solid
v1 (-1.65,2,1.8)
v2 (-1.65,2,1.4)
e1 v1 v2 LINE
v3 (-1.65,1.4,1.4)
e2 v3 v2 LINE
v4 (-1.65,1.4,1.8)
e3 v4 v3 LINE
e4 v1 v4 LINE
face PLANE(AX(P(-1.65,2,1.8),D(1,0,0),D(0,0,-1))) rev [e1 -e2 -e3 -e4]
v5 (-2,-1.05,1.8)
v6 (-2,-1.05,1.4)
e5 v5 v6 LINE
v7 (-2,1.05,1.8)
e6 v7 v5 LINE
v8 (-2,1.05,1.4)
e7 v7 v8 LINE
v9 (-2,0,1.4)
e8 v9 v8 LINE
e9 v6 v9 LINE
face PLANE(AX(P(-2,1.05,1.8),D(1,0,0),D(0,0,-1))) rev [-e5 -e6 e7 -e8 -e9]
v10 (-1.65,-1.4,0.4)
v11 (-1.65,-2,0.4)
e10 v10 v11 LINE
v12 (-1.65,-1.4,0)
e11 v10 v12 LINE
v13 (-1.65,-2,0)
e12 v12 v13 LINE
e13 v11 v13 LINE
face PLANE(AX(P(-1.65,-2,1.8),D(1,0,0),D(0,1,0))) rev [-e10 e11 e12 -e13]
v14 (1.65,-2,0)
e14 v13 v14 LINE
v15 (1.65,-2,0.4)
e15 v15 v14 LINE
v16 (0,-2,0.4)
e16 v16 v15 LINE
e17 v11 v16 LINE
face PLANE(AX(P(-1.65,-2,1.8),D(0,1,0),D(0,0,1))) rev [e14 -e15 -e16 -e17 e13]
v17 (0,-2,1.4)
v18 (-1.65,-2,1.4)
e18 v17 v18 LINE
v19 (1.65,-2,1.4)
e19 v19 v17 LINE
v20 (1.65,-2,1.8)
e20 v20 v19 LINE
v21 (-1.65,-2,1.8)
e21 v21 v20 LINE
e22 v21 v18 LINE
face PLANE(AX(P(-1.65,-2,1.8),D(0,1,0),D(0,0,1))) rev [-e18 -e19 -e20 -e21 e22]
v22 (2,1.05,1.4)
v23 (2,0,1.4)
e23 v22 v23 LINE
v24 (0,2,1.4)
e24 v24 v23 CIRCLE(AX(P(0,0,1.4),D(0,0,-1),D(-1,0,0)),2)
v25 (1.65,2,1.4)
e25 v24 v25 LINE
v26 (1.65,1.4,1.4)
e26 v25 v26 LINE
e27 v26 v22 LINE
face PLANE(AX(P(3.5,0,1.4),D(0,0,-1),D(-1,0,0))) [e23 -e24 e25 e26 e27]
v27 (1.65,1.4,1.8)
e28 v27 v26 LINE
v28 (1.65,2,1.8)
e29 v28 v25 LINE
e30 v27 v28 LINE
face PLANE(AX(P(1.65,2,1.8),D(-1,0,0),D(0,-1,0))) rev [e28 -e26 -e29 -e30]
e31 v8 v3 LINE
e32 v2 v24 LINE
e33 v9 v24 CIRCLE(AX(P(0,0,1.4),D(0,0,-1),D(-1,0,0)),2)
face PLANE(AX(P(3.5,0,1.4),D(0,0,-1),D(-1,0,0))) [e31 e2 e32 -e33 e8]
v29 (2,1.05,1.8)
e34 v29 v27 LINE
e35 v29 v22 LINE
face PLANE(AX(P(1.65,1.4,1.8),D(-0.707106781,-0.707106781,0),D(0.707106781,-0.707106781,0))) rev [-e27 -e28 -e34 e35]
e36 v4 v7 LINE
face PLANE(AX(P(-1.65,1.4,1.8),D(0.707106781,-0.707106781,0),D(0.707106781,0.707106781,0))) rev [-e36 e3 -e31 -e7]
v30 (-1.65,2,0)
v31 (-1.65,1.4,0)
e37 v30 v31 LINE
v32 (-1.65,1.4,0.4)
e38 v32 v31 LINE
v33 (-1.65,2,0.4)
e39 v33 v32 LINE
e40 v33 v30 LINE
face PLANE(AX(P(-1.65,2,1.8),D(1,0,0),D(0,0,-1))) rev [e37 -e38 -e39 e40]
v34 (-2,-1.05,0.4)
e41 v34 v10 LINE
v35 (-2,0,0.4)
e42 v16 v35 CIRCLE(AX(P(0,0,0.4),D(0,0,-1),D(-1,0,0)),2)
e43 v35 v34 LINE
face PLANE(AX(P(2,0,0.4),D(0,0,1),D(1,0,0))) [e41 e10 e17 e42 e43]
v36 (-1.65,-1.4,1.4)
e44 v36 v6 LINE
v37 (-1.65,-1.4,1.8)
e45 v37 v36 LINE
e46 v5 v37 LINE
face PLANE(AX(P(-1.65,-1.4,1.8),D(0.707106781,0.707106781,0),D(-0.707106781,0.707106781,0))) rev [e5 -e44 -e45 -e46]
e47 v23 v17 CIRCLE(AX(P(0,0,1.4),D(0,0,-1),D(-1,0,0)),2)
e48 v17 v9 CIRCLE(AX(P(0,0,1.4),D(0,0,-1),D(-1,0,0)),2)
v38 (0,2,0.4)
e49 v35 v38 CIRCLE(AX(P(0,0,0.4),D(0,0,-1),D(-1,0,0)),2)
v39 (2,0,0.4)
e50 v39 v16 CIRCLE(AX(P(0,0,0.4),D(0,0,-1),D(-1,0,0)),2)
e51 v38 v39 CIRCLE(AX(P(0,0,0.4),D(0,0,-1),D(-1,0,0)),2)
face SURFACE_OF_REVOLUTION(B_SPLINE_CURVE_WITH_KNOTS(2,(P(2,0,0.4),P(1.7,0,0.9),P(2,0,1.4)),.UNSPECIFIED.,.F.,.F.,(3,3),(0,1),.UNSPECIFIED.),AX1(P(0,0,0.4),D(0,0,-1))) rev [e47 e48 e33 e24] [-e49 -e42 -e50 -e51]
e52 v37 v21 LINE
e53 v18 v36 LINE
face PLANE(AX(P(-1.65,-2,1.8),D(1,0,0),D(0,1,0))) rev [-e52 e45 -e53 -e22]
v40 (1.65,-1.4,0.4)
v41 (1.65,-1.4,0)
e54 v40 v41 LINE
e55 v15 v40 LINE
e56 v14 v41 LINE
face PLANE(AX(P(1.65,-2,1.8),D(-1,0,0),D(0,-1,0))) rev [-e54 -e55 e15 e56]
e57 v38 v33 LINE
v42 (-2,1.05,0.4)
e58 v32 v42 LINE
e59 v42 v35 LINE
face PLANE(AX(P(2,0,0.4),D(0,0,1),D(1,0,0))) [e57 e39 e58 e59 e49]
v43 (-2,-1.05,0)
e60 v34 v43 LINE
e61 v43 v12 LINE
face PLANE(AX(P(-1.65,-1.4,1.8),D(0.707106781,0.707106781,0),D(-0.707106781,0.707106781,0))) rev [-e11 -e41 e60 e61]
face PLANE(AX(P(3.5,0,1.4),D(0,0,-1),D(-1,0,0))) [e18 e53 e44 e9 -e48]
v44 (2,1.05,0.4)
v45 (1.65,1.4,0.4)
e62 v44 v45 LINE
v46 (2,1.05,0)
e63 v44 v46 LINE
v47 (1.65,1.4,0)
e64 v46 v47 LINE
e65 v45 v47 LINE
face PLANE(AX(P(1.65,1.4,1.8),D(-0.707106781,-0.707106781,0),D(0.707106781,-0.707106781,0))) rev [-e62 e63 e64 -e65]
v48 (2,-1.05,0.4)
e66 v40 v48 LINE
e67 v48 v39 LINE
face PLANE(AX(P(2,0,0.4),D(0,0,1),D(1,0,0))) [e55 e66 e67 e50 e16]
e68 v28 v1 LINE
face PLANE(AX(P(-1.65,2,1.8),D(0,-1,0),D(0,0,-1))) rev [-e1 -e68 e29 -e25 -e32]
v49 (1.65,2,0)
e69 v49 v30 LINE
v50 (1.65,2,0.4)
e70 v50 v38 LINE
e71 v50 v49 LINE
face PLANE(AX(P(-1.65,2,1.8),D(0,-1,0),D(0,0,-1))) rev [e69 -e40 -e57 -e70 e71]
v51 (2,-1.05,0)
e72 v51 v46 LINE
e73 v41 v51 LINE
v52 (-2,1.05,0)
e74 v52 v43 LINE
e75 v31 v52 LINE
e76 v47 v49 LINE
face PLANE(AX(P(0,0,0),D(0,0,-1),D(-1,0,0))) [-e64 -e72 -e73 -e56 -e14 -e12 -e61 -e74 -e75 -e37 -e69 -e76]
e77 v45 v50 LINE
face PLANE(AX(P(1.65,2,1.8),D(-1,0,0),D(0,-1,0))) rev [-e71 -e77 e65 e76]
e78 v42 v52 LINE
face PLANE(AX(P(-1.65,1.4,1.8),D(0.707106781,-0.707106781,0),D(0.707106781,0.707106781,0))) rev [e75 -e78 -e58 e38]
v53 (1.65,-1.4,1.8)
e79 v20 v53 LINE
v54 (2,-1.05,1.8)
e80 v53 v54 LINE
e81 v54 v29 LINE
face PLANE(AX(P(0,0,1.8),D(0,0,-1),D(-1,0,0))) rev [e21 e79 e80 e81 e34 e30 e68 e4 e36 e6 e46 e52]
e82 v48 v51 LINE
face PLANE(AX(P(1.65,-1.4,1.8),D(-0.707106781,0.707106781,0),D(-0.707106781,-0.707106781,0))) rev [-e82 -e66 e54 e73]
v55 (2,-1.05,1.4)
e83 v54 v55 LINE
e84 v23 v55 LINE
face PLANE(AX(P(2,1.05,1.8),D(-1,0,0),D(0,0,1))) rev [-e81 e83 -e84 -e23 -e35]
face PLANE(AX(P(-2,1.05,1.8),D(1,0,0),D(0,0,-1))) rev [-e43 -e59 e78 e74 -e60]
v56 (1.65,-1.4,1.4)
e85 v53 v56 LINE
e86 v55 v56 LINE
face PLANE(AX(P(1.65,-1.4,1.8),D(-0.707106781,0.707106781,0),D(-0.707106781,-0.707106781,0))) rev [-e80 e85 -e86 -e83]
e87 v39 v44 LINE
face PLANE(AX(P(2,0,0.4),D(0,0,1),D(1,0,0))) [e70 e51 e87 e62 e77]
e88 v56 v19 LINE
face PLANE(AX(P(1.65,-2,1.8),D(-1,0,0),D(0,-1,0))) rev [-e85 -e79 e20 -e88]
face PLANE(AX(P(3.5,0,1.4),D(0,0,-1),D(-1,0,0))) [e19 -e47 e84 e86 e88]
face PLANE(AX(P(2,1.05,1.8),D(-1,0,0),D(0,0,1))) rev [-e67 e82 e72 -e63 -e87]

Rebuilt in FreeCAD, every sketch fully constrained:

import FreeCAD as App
import Part
import Sketcher
Q = App.Units.Quantity


def add_polygon(sketch, points):
    """Adds a closed chain of lines whose ends are joined by coincident constraints."""
    first, n = sketch.GeometryCount, len(points)
    for a, b in zip(points, points[1:] + points[:1]):
        sketch.addGeometry(Part.LineSegment(App.Vector(*a, 0), App.Vector(*b, 0)), False)
    for i in range(n):
        sketch.addConstraint(Sketcher.Constraint("Coincident", first + i, 2, first + (i + 1) % n, 1))

doc = App.newDocument("Part")
body = doc.addObject("PartDesign::Body", "Body")

sketch1 = doc.addObject("Sketcher::SketchObject", "Sketch")
body.addObject(sketch1)
sketch1.AttachmentSupport = (doc.XY_Plane, [""])
sketch1.MapMode = "FlatFace"
add_polygon(sketch1, [(1.65, 2), (-1.65, 2), (-1.65, 1.4), (-2, 1.05), (-2, -1.05), (-1.65, -1.4), (-1.65, -2), (1.65, -2), (1.65, -1.4), (2, -1.05), (2, 1.05), (1.65, 1.4)])
sketch1.addConstraint(Sketcher.Constraint("Horizontal", 0))
sketch1.addConstraint(Sketcher.Constraint("Vertical", 1))
sketch1.addConstraint(Sketcher.Constraint("Vertical", 3))
sketch1.addConstraint(Sketcher.Constraint("Vertical", 5))
sketch1.addConstraint(Sketcher.Constraint("Horizontal", 6))
sketch1.addConstraint(Sketcher.Constraint("Vertical", 7))
sketch1.addConstraint(Sketcher.Constraint("Vertical", 9))
sketch1.addConstraint(Sketcher.Constraint("Vertical", 11))
sketch1.addConstraint(Sketcher.Constraint("Symmetric", 0, 2, 6, 2, -1, 1))
sketch1.addConstraint(Sketcher.Constraint("Symmetric", 2, 2, 8, 2, -1, 1))
sketch1.addConstraint(Sketcher.Constraint("Symmetric", 4, 2, 10, 2, -1, 1))
sketch1.addConstraint(Sketcher.Constraint("Symmetric", 4, 2, 7, 2, -2))
sketch1.addConstraint(Sketcher.Constraint("Perpendicular", 2, 4))
sketch1.addConstraint(Sketcher.Constraint("Perpendicular", 4, 8))
sketch1.addConstraint(Sketcher.Constraint("Perpendicular", 8, 10))
sketch1.addConstraint(Sketcher.Constraint("Horizontal", 3, 2, 8, 2))
sketch1.addConstraint(Sketcher.Constraint("DistanceX", 0, 2, 0, 1, Q("3.3 mm")))
sketch1.addConstraint(Sketcher.Constraint("DistanceY", 1, 2, 1, 1, Q("0.6 mm")))
sketch1.addConstraint(Sketcher.Constraint("DistanceY", 3, 2, 3, 1, Q("2.1 mm")))
sketch1.addConstraint(Sketcher.Constraint("DistanceY", -1, 1, 0, 2, Q("2 mm")))
pad1 = doc.addObject("PartDesign::Pad", "Pad")
body.addObject(pad1)
pad1.Profile = sketch1
pad1.Length = 1.8

sketch2 = doc.addObject("Sketcher::SketchObject", "Sketch001")
body.addObject(sketch2)
sketch2.AttachmentSupport = (doc.XZ_Plane, [""])
sketch2.MapMode = "FlatFace"
sketch2.addGeometry(Part.LineSegment(App.Vector(3.5, 0.4, 0), App.Vector(2, 0.4, 0)), False)
sketch2.addGeometry(Part.BSplineCurve([App.Vector(2, 0.4, 0), App.Vector(1.7, 0.9, 0), App.Vector(2, 1.4, 0)], [3, 3], [0, 1], False, 2, [1, 1, 1], False), False)
sketch2.addGeometry(Part.LineSegment(App.Vector(2, 1.4, 0), App.Vector(3.5, 1.4, 0)), False)
sketch2.addGeometry(Part.LineSegment(App.Vector(3.5, 1.4, 0), App.Vector(3.5, 0.4, 0)), False)
sketch2.addConstraint(Sketcher.Constraint("Block", 1))
sketch2.addConstraint(Sketcher.Constraint("Coincident", 0, 2, 1, 1))
sketch2.addConstraint(Sketcher.Constraint("Coincident", 1, 2, 2, 1))
sketch2.addConstraint(Sketcher.Constraint("Coincident", 2, 2, 3, 1))
sketch2.addConstraint(Sketcher.Constraint("Coincident", 3, 2, 0, 1))
sketch2.addConstraint(Sketcher.Constraint("Horizontal", 0))
sketch2.addConstraint(Sketcher.Constraint("Horizontal", 2))
sketch2.addConstraint(Sketcher.Constraint("Vertical", 3))
sketch2.addConstraint(Sketcher.Constraint("DistanceX", 0, 2, 0, 1, Q("1.5 mm")))
groove = doc.addObject("PartDesign::Groove", "Groove")
body.addObject(groove)
groove.Profile = sketch2
groove.ReferenceAxis = (sketch2, ["V_Axis"])
groove.Angle = 360

doc.recompute()
